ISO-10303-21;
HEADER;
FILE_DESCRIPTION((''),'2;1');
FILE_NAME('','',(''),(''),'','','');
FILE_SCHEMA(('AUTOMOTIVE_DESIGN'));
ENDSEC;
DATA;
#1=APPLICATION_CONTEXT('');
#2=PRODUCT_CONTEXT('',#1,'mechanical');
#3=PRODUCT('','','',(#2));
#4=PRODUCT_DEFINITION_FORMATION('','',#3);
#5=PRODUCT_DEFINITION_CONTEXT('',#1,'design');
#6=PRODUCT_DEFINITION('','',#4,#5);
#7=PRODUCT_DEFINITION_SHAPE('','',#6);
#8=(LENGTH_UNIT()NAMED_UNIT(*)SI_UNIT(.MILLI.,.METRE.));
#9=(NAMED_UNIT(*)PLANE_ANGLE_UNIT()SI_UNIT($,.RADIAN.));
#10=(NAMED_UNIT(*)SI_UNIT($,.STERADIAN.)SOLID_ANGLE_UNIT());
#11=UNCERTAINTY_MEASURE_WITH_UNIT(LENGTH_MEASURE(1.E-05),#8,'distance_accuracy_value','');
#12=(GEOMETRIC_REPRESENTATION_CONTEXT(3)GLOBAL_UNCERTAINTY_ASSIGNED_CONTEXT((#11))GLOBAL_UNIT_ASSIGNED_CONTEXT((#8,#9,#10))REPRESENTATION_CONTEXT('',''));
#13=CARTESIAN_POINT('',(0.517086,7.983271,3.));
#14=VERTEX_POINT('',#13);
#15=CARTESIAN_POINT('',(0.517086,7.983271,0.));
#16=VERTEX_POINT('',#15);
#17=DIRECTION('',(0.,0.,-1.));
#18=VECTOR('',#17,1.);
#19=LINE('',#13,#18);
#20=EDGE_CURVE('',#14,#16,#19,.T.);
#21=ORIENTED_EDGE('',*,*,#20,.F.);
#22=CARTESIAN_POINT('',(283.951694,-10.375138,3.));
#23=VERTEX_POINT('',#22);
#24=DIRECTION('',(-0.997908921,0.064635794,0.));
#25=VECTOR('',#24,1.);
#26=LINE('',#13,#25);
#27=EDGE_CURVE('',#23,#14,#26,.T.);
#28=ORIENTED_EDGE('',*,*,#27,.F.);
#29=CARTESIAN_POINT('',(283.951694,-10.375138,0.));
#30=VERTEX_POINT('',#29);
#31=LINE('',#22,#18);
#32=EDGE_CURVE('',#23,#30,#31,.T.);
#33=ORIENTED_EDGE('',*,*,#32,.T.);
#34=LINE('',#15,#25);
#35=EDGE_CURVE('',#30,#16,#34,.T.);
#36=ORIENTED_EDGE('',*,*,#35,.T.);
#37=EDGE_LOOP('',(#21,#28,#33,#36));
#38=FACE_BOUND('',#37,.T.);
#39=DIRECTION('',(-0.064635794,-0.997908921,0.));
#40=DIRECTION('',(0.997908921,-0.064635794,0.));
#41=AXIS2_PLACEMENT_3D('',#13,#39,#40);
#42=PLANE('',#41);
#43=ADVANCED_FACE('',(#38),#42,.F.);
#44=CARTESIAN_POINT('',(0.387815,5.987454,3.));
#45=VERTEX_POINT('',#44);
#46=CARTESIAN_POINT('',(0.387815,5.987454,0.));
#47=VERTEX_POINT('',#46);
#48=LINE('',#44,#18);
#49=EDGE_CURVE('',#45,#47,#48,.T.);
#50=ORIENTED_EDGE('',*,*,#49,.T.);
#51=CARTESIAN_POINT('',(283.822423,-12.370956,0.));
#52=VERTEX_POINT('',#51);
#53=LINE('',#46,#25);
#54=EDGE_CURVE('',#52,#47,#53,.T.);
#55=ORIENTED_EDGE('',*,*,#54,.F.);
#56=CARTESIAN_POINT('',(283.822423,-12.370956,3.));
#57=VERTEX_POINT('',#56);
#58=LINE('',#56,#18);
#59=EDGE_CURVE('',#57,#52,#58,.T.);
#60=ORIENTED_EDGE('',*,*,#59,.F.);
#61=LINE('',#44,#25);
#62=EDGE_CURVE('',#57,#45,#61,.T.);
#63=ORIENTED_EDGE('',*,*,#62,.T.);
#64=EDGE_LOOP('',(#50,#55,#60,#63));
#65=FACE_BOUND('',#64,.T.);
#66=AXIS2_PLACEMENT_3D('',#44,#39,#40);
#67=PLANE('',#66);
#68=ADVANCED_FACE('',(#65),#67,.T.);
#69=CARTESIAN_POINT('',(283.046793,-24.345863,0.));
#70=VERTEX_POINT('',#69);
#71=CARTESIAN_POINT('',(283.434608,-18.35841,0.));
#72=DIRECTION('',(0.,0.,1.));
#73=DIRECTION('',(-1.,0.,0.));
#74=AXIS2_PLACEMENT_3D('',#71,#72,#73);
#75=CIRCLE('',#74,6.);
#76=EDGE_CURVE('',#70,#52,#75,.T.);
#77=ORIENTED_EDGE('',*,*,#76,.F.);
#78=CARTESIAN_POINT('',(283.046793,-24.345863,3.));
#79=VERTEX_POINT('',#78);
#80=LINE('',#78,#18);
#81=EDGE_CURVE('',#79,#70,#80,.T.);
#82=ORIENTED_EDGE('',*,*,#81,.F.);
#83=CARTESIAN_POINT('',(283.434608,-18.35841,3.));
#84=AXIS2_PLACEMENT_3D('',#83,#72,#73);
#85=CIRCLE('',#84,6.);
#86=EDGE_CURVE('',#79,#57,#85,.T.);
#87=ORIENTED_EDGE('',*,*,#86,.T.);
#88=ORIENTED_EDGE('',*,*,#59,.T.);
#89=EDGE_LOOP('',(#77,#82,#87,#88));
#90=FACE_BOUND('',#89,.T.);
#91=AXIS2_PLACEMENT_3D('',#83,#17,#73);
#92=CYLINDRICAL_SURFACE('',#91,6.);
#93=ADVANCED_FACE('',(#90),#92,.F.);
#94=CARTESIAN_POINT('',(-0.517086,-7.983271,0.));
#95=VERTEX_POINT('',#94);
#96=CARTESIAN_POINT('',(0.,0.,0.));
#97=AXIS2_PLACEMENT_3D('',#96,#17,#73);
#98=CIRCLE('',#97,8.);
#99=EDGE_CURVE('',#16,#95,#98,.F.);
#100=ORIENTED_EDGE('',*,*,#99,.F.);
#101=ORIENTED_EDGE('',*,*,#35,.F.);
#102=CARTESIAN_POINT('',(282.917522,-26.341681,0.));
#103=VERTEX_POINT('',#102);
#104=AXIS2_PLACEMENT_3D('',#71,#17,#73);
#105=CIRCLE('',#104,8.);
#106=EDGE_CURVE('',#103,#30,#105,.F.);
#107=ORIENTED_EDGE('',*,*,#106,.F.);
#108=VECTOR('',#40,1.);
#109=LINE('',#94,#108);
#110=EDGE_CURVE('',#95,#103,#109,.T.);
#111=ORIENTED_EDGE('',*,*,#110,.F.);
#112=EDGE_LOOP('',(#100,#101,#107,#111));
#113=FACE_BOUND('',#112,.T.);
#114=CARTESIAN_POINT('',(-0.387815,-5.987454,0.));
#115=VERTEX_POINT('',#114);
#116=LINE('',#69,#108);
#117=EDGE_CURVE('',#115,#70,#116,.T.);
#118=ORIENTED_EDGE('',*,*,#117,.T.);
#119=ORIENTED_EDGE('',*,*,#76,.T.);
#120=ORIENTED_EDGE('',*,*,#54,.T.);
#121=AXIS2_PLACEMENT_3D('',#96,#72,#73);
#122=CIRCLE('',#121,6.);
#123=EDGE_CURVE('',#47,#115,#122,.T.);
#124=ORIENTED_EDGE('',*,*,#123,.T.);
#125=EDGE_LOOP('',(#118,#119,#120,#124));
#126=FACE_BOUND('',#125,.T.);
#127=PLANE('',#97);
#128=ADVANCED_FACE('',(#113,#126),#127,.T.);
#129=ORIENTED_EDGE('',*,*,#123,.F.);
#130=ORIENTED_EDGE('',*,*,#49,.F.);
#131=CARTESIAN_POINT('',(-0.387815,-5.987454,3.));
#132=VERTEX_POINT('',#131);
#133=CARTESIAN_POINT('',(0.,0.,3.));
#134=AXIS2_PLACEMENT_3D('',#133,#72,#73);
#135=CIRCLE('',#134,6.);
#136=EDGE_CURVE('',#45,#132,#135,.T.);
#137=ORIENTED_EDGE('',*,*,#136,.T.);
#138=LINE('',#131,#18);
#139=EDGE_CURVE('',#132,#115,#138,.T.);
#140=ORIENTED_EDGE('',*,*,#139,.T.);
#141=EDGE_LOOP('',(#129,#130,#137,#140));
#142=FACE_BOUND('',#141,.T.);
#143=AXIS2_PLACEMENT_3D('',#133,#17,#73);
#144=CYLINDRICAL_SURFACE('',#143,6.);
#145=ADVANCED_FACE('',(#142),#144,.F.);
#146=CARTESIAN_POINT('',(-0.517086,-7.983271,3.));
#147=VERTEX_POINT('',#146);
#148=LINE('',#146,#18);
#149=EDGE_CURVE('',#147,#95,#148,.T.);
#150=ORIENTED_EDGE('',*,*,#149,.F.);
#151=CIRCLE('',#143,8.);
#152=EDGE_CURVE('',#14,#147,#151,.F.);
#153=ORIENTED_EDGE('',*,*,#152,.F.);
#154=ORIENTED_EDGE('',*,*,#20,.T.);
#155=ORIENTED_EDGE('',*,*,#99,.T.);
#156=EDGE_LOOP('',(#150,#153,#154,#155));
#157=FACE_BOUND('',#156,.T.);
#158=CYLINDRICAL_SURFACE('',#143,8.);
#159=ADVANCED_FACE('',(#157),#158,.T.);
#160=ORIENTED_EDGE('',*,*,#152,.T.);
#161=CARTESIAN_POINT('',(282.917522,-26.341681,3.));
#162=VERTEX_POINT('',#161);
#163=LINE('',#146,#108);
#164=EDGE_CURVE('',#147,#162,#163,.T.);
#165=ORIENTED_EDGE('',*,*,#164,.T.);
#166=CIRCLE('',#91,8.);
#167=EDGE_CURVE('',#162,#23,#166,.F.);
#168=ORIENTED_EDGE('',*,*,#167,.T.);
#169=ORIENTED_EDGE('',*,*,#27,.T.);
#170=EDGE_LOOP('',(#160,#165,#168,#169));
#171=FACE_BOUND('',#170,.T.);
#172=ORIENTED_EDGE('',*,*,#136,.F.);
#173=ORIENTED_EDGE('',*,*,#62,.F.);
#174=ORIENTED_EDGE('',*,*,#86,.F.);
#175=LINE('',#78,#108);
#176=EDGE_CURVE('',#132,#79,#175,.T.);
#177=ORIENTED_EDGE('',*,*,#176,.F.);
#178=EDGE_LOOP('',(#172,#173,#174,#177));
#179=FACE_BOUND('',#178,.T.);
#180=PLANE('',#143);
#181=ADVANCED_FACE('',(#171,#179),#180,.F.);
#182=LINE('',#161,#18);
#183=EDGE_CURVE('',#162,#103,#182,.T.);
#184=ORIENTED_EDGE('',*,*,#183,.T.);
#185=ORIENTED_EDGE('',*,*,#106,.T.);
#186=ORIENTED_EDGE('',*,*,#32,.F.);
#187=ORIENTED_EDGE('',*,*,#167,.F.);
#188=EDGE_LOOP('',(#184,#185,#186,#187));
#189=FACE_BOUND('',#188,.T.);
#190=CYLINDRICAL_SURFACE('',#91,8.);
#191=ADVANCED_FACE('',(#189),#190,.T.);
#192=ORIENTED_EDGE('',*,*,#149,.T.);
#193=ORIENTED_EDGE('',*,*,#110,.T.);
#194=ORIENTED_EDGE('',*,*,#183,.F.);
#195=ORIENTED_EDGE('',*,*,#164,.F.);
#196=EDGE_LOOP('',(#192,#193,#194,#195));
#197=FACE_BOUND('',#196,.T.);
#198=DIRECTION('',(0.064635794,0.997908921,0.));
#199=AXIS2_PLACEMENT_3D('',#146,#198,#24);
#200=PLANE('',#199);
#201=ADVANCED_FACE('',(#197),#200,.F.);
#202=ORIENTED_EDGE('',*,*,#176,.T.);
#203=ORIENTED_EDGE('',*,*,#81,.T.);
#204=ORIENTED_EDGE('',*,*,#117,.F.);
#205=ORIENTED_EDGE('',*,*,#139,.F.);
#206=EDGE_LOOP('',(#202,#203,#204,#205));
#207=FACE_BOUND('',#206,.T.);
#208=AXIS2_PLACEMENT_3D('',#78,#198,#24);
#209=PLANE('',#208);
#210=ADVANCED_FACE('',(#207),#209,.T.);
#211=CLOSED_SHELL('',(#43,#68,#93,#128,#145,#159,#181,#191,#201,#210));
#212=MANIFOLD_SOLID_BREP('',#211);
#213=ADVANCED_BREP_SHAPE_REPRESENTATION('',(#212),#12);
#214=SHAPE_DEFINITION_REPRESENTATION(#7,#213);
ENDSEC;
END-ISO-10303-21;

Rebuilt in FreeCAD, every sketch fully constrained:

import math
import FreeCAD as App
import Part
import Sketcher
from FreeCAD import Vector
Q = App.Units.Quantity

doc = App.newDocument("Part")
params = doc.addObject("Spreadsheet::Sheet", "Params")
for row, (alias, value) in enumerate([
    ("sketch1_radius", "8 mm"),
    ("sketch1_radius2", "8 mm"),
    ("sketch1_radius3", "6 mm"),
    ("sketch1_radius4", "6 mm"),
    ("pad1_length", "3 mm"),
], start=1):
    params.set(f"A{row}", alias)
    params.set(f"B{row}", "=" + value)
    params.setAlias(f"B{row}", alias)

body = doc.addObject("PartDesign::Body", "Body")

sketch1 = body.newObject("Sketcher::SketchObject", "Sketch")
sketch1.AttachmentSupport = (doc.getObject("XY_Plane"), [""])
sketch1.MapMode = "FlatFace"
sketch1.addGeometry([
    Part.LineSegment(Vector(-0.517086, -7.983271, 0), Vector(282.917522, -26.341681, 0)),
    Part.ArcOfCircle(Part.Circle(Vector(283.434608, -18.35841, 0), Vector(0, 0, 1), 8), math.radians(-93.705942), math.radians(86.294058)),
    Part.LineSegment(Vector(283.951694, -10.375138, 0), Vector(0.517086, 7.983271, 0)),
    Part.ArcOfCircle(Part.Circle(Vector(0, 0, 0), Vector(0, 0, 1), 8), math.radians(86.294058), math.radians(266.294058)),
    Part.LineSegment(Vector(283.046793, -24.345863, 0), Vector(-0.387815, -5.987454, 0)),
    Part.ArcOfCircle(Part.Circle(Vector(0, 0, 0), Vector(0, 0, 1), 6), math.radians(86.294058), math.radians(266.294058)),
    Part.LineSegment(Vector(0.387815, 5.987454, 0), Vector(283.822423, -12.370956, 0)),
    Part.ArcOfCircle(Part.Circle(Vector(283.434608, -18.35841, 0), Vector(0, 0, 1), 6), math.radians(-93.705942), math.radians(86.294058)),
], False)
sketch1.addConstraint([
    Sketcher.Constraint("Coincident", 0, 2, 1, 1),
    Sketcher.Constraint("Coincident", 1, 2, 2, 1),
    Sketcher.Constraint("Coincident", 2, 2, 3, 1),
    Sketcher.Constraint("Coincident", 3, 2, 0, 1),
    Sketcher.Constraint("Coincident", 4, 2, 5, 2),
    Sketcher.Constraint("Coincident", 5, 1, 6, 1),
    Sketcher.Constraint("Coincident", 6, 2, 7, 2),
    Sketcher.Constraint("Coincident", 7, 1, 4, 1),
    Sketcher.Constraint("Coincident", 3, 3, -1, 1),
    Sketcher.Constraint("Coincident", 5, 3, -1, 1),
    Sketcher.Constraint("Coincident", 7, 3, 1, 3),
    Sketcher.Constraint("Radius", 1, Q("8 mm")),
    Sketcher.Constraint("Radius", 3, Q("8 mm")),
    Sketcher.Constraint("Radius", 5, Q("6 mm")),
    Sketcher.Constraint("Radius", 7, Q("6 mm")),
    Sketcher.Constraint("DistanceX", 4, 2, 2, 2, Q("0.904901 mm")),
    Sketcher.Constraint("DistanceX", 3, 2, 5, 1, Q("0.904901 mm")),
    Sketcher.Constraint("DistanceX", 0, 2, 6, 2, Q("0.904901 mm")),
    Sketcher.Constraint("DistanceX", 7, 1, 1, 2, Q("0.904901 mm")),
    Sketcher.Constraint("DistanceY", 1, 3, -1, 1, Q("18.35841 mm")),
    Sketcher.Constraint("DistanceX", -1, 1, 0, 2, Q("282.917522 mm")),
    Sketcher.Constraint("DistanceY", 0, 2, -1, 1, Q("26.341681 mm")),
    Sketcher.Constraint("DistanceY", 1, 2, -1, 1, Q("10.375138 mm")),
    Sketcher.Constraint("DistanceY", -1, 1, 2, 2, Q("7.983271 mm")),
    Sketcher.Constraint("DistanceY", 3, 2, -1, 1, Q("7.983271 mm")),
])
sketch1.setExpression("Constraints[11]", "Params.sketch1_radius")
sketch1.setExpression("Constraints[12]", "Params.sketch1_radius2")
sketch1.setExpression("Constraints[13]", "Params.sketch1_radius3")
sketch1.setExpression("Constraints[14]", "Params.sketch1_radius4")
pad1 = body.newObject("PartDesign::Pad", "Pad")
pad1.Profile = sketch1
pad1.setExpression("Length", "Params.pad1_length")

doc.recompute()
